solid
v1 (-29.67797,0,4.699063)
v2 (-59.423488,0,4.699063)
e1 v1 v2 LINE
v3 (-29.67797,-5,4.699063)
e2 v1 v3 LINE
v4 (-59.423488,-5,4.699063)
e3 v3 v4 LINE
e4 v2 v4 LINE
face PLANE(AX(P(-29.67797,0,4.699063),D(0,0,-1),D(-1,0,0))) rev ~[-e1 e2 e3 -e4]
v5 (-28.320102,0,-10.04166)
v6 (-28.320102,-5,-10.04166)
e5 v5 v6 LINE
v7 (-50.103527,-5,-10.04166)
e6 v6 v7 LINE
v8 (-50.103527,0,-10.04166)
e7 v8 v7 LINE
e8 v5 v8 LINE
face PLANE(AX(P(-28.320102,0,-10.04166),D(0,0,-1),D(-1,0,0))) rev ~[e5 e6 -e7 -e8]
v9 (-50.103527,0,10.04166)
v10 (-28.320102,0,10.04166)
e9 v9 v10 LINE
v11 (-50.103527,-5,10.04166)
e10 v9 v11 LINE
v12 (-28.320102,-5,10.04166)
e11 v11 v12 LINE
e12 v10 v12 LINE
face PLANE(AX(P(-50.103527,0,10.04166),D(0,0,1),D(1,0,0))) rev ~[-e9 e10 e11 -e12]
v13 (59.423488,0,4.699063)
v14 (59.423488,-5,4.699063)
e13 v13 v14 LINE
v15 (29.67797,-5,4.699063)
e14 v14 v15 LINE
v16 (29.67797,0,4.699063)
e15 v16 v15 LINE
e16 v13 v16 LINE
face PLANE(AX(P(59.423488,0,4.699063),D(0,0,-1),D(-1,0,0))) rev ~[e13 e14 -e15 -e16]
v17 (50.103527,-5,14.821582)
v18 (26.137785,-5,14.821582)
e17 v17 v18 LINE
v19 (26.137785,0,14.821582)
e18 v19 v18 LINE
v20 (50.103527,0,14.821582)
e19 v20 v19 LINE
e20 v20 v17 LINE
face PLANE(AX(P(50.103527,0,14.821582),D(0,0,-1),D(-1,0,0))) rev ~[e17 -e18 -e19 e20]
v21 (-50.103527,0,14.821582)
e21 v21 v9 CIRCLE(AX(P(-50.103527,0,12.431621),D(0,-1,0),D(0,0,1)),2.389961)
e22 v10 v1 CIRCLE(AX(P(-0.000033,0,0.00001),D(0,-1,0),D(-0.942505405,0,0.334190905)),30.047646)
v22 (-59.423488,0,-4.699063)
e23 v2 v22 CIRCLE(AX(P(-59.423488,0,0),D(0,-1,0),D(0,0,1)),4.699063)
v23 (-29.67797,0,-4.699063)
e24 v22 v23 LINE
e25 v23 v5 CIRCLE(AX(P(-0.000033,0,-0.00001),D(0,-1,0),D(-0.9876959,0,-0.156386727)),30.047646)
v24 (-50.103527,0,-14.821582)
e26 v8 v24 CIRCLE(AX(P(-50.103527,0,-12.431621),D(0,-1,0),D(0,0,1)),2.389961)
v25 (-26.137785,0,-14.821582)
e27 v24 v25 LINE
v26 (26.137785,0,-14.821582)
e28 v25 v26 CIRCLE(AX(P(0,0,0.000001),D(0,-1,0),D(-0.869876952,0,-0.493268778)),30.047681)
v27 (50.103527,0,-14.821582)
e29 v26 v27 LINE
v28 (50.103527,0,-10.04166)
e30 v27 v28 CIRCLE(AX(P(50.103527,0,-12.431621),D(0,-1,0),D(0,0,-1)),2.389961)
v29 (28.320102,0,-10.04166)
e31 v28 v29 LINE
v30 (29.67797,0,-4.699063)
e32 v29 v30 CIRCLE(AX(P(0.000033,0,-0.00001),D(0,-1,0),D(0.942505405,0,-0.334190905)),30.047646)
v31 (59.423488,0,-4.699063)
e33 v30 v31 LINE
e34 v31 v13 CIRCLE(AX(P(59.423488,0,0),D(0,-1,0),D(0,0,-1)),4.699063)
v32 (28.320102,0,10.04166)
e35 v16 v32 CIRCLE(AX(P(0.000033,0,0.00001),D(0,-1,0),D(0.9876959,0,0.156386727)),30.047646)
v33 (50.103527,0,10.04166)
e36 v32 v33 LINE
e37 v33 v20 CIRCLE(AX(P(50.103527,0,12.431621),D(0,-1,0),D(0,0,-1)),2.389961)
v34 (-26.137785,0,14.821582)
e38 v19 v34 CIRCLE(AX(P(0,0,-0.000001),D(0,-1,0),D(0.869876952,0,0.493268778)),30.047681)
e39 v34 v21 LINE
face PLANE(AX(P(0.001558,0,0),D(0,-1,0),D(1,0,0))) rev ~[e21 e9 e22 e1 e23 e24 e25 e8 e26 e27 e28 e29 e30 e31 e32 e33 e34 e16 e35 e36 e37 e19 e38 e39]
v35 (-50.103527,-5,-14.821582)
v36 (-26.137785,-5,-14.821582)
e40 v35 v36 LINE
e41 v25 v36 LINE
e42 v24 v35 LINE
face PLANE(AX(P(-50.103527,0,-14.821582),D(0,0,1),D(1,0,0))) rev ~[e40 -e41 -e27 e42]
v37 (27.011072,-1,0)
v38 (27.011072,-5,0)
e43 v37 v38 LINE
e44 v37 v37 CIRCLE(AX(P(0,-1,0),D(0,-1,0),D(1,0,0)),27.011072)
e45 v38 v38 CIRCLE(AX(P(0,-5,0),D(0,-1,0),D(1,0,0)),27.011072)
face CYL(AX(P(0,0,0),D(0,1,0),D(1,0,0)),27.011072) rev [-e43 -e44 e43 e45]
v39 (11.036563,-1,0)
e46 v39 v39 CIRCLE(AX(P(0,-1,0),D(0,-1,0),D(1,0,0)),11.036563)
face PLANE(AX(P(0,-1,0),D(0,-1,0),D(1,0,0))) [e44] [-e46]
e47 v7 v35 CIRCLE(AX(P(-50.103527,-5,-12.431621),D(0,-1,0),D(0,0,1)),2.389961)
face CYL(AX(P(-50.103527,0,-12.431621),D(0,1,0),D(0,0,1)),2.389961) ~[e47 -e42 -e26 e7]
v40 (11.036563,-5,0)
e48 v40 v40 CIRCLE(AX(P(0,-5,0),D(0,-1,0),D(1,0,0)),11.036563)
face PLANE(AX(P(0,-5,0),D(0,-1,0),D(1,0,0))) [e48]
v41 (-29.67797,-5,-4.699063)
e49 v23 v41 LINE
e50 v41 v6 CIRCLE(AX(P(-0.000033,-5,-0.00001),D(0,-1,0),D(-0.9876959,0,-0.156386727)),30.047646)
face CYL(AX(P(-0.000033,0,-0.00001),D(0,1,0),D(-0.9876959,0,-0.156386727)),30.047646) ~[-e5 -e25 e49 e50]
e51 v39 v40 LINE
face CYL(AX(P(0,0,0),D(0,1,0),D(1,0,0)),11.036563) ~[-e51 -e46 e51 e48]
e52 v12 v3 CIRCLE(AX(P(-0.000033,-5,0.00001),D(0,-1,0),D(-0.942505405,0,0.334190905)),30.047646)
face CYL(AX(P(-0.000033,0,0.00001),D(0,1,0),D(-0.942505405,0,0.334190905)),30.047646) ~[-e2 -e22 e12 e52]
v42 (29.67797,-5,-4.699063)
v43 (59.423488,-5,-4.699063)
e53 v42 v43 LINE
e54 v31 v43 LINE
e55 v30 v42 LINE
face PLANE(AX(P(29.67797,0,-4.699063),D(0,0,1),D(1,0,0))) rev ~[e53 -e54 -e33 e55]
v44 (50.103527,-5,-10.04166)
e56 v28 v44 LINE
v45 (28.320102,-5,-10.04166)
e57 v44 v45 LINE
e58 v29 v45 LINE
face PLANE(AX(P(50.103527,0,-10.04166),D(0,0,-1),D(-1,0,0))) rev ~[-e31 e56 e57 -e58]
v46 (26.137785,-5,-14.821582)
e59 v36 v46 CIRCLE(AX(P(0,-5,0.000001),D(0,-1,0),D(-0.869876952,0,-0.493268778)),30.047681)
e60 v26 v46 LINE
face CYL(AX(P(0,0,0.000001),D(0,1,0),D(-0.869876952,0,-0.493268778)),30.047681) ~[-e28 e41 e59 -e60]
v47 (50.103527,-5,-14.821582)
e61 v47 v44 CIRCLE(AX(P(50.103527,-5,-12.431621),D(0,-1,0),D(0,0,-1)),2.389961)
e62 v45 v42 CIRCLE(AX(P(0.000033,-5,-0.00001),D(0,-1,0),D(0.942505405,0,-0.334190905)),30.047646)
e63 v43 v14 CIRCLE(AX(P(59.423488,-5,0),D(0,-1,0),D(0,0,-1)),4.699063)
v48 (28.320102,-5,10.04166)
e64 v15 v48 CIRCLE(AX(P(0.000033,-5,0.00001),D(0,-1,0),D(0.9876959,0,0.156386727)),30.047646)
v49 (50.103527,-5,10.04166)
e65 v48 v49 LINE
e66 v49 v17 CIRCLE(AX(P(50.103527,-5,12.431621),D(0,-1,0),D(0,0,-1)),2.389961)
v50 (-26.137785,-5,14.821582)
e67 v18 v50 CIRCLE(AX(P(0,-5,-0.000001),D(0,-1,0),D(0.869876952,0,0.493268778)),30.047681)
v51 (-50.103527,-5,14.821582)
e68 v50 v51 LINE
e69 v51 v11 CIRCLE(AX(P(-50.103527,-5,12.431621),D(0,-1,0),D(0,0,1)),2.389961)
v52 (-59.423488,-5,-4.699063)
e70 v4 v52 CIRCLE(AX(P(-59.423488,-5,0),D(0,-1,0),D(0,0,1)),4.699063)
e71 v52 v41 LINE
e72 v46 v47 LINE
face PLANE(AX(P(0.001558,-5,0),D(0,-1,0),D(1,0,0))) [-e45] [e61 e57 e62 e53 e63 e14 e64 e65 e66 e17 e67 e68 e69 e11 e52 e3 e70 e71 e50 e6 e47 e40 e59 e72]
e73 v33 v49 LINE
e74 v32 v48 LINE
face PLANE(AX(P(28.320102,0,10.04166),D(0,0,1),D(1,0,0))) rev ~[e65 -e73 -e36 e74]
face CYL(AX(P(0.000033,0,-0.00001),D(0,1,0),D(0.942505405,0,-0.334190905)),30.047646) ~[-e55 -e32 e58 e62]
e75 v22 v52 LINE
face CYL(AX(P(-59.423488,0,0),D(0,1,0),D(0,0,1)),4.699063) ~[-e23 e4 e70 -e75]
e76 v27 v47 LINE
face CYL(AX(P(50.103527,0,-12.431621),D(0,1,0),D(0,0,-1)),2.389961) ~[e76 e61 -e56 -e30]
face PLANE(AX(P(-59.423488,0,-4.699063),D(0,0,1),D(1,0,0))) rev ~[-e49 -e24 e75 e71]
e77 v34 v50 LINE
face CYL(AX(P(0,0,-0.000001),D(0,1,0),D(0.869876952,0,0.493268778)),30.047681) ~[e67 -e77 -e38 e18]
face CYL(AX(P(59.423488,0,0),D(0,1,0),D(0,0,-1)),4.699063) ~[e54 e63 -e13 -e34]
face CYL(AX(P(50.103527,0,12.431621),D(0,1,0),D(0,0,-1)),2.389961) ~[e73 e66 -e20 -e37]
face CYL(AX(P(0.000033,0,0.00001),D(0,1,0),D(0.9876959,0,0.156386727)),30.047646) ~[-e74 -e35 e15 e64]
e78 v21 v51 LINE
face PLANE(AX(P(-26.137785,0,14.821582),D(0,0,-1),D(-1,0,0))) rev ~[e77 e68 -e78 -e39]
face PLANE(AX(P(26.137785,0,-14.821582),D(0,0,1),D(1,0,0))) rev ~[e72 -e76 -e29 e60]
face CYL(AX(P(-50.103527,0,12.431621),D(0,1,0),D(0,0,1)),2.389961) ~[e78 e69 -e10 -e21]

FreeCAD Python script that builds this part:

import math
import FreeCAD as App
import Part
import Sketcher

V = App.Vector

doc = App.newDocument("Part")
body = doc.addObject("PartDesign::Body", "Body")

sketch1 = body.newObject("Sketcher::SketchObject", "Sketch")
sketch1.AttachmentSupport = (doc.getObject("XZ_Plane"), [""])
sketch1.MapMode = "FlatFace"
sketch1.addGeometry([
    Part.Circle(V(0, 0, 0), V(0, 0, 1), 27),
    Part.Circle(V(0, 0, 0), V(0, 0, 1), 11),
], False)
sketch1.addConstraint([
    Sketcher.Constraint("Coincident", 0, 3, -1, 1),
    Sketcher.Constraint("Coincident", 1, 3, -1, 1),
    Sketcher.Constraint("Diameter", 0, 54.022144),
    Sketcher.Constraint("Diameter", 1, 22.073126),
])
pad1 = body.newObject("PartDesign::Pad", "Pad")
pad1.Profile = sketch1
pad1.Length = 1

sketch2 = body.newObject("Sketcher::SketchObject", "Sketch001")
sketch2.AttachmentSupport = (doc.getObject("XZ_Plane"), [""])
sketch2.MapMode = "FlatFace"
sketch2.addGeometry([
    Part.ArcOfCircle(Part.Circle(V(0.000033, 0.00001, 0), V(0, 0, 1), 30.047646), math.radians(8.997231), math.radians(19.523345)),
    Part.LineSegment(V(28.320102, 10.04166, 0), V(50.103527, 10.04166, 0)),
    Part.ArcOfCircle(Part.Circle(V(50.103527, 12.431621, 0), V(0, 0, 1), 2.389961), math.radians(-90), math.radians(90)),
    Part.LineSegment(V(50.103527, 14.821582, 0), V(26.137785, 14.821582, 0)),
    Part.ArcOfCircle(Part.Circle(V(0, -0.000001, 0), V(0, 0, 1), 30.047681), math.radians(29.555656), math.radians(150.444344)),
    Part.LineSegment(V(-26.137785, 14.821582, 0), V(-50.103527, 14.821582, 0)),
    Part.ArcOfCircle(Part.Circle(V(-50.103527, 12.431621, 0), V(0, 0, 1), 2.389961), math.radians(90), math.radians(270)),
    Part.LineSegment(V(-50.103527, 10.04166, 0), V(-28.320102, 10.04166, 0)),
    Part.ArcOfCircle(Part.Circle(V(-0.000033, 0.00001, 0), V(0, 0, 1), 30.047646), math.radians(160.476655), math.radians(171.002769)),
    Part.LineSegment(V(-29.67797, 4.699063, 0), V(-59.423488, 4.699063, 0)),
    Part.ArcOfCircle(Part.Circle(V(-59.423488, 0, 0), V(0, 0, 1), 4.699063), math.radians(90), math.radians(270)),
    Part.LineSegment(V(-59.423488, -4.699063, 0), V(-29.67797, -4.699063, 0)),
    Part.ArcOfCircle(Part.Circle(V(-0.000033, -0.00001, 0), V(0, 0, 1), 30.047646), math.radians(-171.002769), math.radians(-160.476655)),
    Part.LineSegment(V(-28.320102, -10.04166, 0), V(-50.103527, -10.04166, 0)),
    Part.ArcOfCircle(Part.Circle(V(-50.103527, -12.431621, 0), V(0, 0, 1), 2.389961), math.radians(90), math.radians(270)),
    Part.LineSegment(V(-50.103527, -14.821582, 0), V(-26.137785, -14.821582, 0)),
    Part.ArcOfCircle(Part.Circle(V(0, 0.000001, 0), V(0, 0, 1), 30.047681), math.radians(-150.444344), math.radians(-29.555656)),
    Part.LineSegment(V(26.137785, -14.821582, 0), V(50.103527, -14.821582, 0)),
    Part.ArcOfCircle(Part.Circle(V(50.103527, -12.431621, 0), V(0, 0, 1), 2.389961), math.radians(-90), math.radians(90)),
    Part.LineSegment(V(50.103527, -10.04166, 0), V(28.320102, -10.04166, 0)),
    Part.ArcOfCircle(Part.Circle(V(0.000033, -0.00001, 0), V(0, 0, 1), 30.047646), math.radians(-19.523345), math.radians(-8.997231)),
    Part.LineSegment(V(29.67797, -4.699063, 0), V(59.423488, -4.699063, 0)),
    Part.ArcOfCircle(Part.Circle(V(59.423488, 0, 0), V(0, 0, 1), 4.699063), math.radians(-90), math.radians(90)),
    Part.LineSegment(V(59.423488, 4.699063, 0), V(29.67797, 4.699063, 0)),
    Part.Circle(V(0, 0, 0), V(0, 0, 1), 27.011072),
    Part.Circle(V(0, 0, 0), V(0, 0, 1), 11.036563),
], False)
sketch2.addConstraint([
    Sketcher.Constraint("Coincident", 0, 2, 1, 1),
    Sketcher.Constraint("Tangent", 1, 2, 2, 1),
    Sketcher.Constraint("Tangent", 2, 2, 3, 1),
    Sketcher.Constraint("Coincident", 3, 2, 4, 1),
    Sketcher.Constraint("Coincident", 4, 2, 5, 1),
    Sketcher.Constraint("Tangent", 5, 2, 6, 1),
    Sketcher.Constraint("Tangent", 6, 2, 7, 1),
    Sketcher.Constraint("Coincident", 7, 2, 8, 1),
    Sketcher.Constraint("Coincident", 8, 2, 9, 1),
    Sketcher.Constraint("Tangent", 9, 2, 10, 1),
    Sketcher.Constraint("Tangent", 10, 2, 11, 1),
    Sketcher.Constraint("Coincident", 11, 2, 12, 1),
    Sketcher.Constraint("Coincident", 12, 2, 13, 1),
    Sketcher.Constraint("Tangent", 13, 2, 14, 1),
    Sketcher.Constraint("Tangent", 14, 2, 15, 1),
    Sketcher.Constraint("Coincident", 15, 2, 16, 1),
    Sketcher.Constraint("Coincident", 16, 2, 17, 1),
    Sketcher.Constraint("Tangent", 17, 2, 18, 1),
    Sketcher.Constraint("Tangent", 18, 2, 19, 1),
    Sketcher.Constraint("Coincident", 19, 2, 20, 1),
    Sketcher.Constraint("Coincident", 20, 2, 21, 1),
    Sketcher.Constraint("Tangent", 21, 2, 22, 1),
    Sketcher.Constraint("Tangent", 22, 2, 23, 1),
    Sketcher.Constraint("Coincident", 23, 2, 0, 1),
    Sketcher.Constraint("Horizontal", 1),
    Sketcher.Constraint("Horizontal", 3),
    Sketcher.Constraint("Horizontal", 5),
    Sketcher.Constraint("Horizontal", 7),
    Sketcher.Constraint("Horizontal", 9),
    Sketcher.Constraint("Horizontal", 11),
    Sketcher.Constraint("Horizontal", 13),
    Sketcher.Constraint("Horizontal", 15),
    Sketcher.Constraint("Horizontal", 17),
    Sketcher.Constraint("Horizontal", 19),
    Sketcher.Constraint("Horizontal", 21),
    Sketcher.Constraint("Horizontal", 23),
    Sketcher.Constraint("Coincident", 4, 3, -1, 1),
    Sketcher.Constraint("Coincident", 16, 3, -1, 1),
    Sketcher.Constraint("Coincident", 24, 3, -1, 1),
    Sketcher.Constraint("Coincident", 25, 3, -1, 1),
    Sketcher.Constraint("Equal", 2, 6),
    Sketcher.Constraint("Equal", 0, 8),
    Sketcher.Constraint("Equal", 8, 12),
    Sketcher.Constraint("Equal", 6, 14),
    Sketcher.Constraint("Equal", 4, 16),
    Sketcher.Constraint("Equal", 14, 18),
    Sketcher.Constraint("Equal", 12, 20),
    Sketcher.Constraint("Equal", 10, 22),
    Sketcher.Constraint("Symmetric", 0, 3, 12, 3, -1, 1),
    Sketcher.Constraint("Symmetric", 2, 3, 14, 3, -1, 1),
    Sketcher.Constraint("Symmetric", 6, 3, 18, 3, -1, 1),
    Sketcher.Constraint("Symmetric", 8, 3, 20, 3, -1, 1),
    Sketcher.Constraint("Symmetric", 10, 3, 22, 3, -1, 1),
    Sketcher.Constraint("Symmetric", 2, 3, 6, 3, -2),
    Sketcher.Constraint("Symmetric", 0, 3, 8, 3, -2),
    Sketcher.Constraint("PointOnObject", 10, 3, -1),
    Sketcher.Constraint("Radius", 2, 2.389961),
    Sketcher.Constraint("Radius", 4, 30.047681),
    Sketcher.Constraint("Diameter", 24, 54.022144),
    Sketcher.Constraint("Diameter", 25, 22.073126),
    Sketcher.Constraint("Radius", 0, 30.047646),
    Sketcher.Constraint("Radius", 10, 4.699063),
    Sketcher.Constraint("DistanceX", 3, 2, 3, 1, 23.965742),
    Sketcher.Constraint("DistanceX", 9, 2, 9, 1, 29.745518),
    Sketcher.Constraint("DistanceX", -1, 1, 0, 2, 28.320102),
    Sketcher.Constraint("DistanceX", 1, 1, 1, 2, 21.783425),
    Sketcher.Constraint("DistanceX", 8, 2, -1, 1, 29.67797),
])
pad2 = body.newObject("PartDesign::Pad", "Pad001")
pad2.Profile = sketch2
pad2.Length = 5

doc.recompute()
